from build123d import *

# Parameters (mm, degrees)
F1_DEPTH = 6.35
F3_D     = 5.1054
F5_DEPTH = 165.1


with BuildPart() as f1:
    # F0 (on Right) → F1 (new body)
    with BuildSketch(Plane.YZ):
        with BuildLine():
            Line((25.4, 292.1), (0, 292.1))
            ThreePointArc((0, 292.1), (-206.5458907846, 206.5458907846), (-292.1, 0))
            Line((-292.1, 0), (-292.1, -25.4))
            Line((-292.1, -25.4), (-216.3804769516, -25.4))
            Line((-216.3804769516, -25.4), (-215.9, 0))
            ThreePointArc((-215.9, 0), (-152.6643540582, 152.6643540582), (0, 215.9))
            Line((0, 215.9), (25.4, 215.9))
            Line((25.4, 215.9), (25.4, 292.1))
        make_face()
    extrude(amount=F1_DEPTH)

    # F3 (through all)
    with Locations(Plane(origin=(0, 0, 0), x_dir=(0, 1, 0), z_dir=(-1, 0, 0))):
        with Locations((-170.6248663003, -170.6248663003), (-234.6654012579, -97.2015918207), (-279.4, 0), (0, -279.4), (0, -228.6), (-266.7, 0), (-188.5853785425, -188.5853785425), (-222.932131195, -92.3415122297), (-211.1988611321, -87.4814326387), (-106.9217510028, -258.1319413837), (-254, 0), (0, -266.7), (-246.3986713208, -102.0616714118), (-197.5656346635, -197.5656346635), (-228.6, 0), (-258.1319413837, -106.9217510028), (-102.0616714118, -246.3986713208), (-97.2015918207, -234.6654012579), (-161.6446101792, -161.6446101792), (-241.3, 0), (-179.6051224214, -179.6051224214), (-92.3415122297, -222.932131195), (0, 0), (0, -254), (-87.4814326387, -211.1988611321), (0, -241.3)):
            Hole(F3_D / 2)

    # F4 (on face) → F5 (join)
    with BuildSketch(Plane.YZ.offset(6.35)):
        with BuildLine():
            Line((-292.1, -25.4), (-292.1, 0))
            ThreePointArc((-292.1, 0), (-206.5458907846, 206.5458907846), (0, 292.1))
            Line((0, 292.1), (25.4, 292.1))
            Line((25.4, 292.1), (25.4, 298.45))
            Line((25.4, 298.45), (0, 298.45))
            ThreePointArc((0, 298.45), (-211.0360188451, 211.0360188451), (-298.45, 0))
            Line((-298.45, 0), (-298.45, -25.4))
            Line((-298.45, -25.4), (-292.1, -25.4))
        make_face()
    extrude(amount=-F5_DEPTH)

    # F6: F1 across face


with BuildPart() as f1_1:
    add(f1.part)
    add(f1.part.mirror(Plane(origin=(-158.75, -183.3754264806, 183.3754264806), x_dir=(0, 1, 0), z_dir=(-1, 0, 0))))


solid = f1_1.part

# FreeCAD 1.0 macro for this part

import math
import FreeCAD as App
import Part
import Sketcher

V = App.Vector
Q = App.Units.Quantity

doc = App.newDocument("Part")
body = doc.addObject("PartDesign::Body", "Body")

# Sketch on YZ plane
sketch1 = body.newObject("Sketcher::SketchObject", "Sketch")
sketch1.AttachmentSupport = (doc.getObject("YZ_Plane"), [""])
sketch1.MapMode = "FlatFace"
sketch1.addGeometry([
    Part.LineSegment(V(25, 292, 0), V(0, 292, 0)),  # 0
    Part.ArcOfCircle(Part.Circle(V(0, 0, 0), V(0, 0, 1), 292), math.radians(90), math.radians(180)),  # 1
    Part.LineSegment(V(-292, 0, 0), V(-292, -25, 0)),  # 2
    Part.LineSegment(V(-292, -25, 0), V(-216, -25, 0)),  # 3
    Part.LineSegment(V(-216, -25, 0), V(-216, 0, 0)),  # 4
    Part.ArcOfCircle(Part.Circle(V(0, 0, 0), V(0, 0, 1), 216), math.radians(90), math.radians(180)),  # 5
    Part.LineSegment(V(0, 216, 0), V(25, 216, 0)),  # 6
    Part.LineSegment(V(25, 216, 0), V(25, 292, 0)),  # 7
], False)
sketch1.addConstraint([
    Sketcher.Constraint("Tangent", 0, 2, 1, 1),
    Sketcher.Constraint("Tangent", 1, 2, 2, 1),
    Sketcher.Constraint("Coincident", 2, 2, 3, 1),
    Sketcher.Constraint("Coincident", 3, 2, 4, 1),
    Sketcher.Constraint("Coincident", 4, 2, 5, 2),
    Sketcher.Constraint("Tangent", 5, 1, 6, 1),
    Sketcher.Constraint("Coincident", 6, 2, 7, 1),
    Sketcher.Constraint("Coincident", 7, 2, 0, 1),
    Sketcher.Constraint("Horizontal", 0),
    Sketcher.Constraint("Vertical", 2),
    Sketcher.Constraint("Horizontal", 3),
    Sketcher.Constraint("Horizontal", 6),
    Sketcher.Constraint("Vertical", 7),
    Sketcher.Constraint("Coincident", 1, 3, -1, 1),
    Sketcher.Constraint("Coincident", 5, 3, -1, 1),
    Sketcher.Constraint("PointOnObject", 4, 2, -1),
    Sketcher.Constraint("Equal", 6, 2),
    Sketcher.Constraint("Radius", 1, Q("11.5 in")),
    Sketcher.Constraint("Radius", 5, Q("8.5 in")),
    Sketcher.Constraint("DistanceX", 0, 2, 0, 1, Q("1 in")),
    Sketcher.Constraint("DistanceX", 3, 1, 3, 2, Q("75.719523 mm")),
])
pad1 = body.newObject("PartDesign::Pad", "Pad")
pad1.Profile = sketch1
pad1.Length = Q("0.25 in")

# Sketch on YZ plane
sketch2 = body.newObject("Sketcher::SketchObject", "Sketch001")
sketch2.AttachmentSupport = (doc.getObject("YZ_Plane"), [""])
sketch2.MapMode = "FlatFace"
sketch2.addGeometry([
    Part.Circle(V(-170.6, 170.6, 0), V(0, 0, 1), 2.6),  # 0
    Part.Circle(V(-234.7, 97.2, 0), V(0, 0, 1), 2.6),  # 1
    Part.Circle(V(-279.4, 0, 0), V(0, 0, 1), 2.6),  # 2
    Part.Circle(V(0, 279.4, 0), V(0, 0, 1), 2.6),  # 3
    Part.Circle(V(0, 228.6, 0), V(0, 0, 1), 2.6),  # 4
    Part.Circle(V(-266.7, 0, 0), V(0, 0, 1), 2.6),  # 5
    Part.Circle(V(-188.6, 188.6, 0), V(0, 0, 1), 2.6),  # 6
    Part.Circle(V(-222.9, 92.3, 0), V(0, 0, 1), 2.6),  # 7
    Part.Circle(V(-211.2, 87.5, 0), V(0, 0, 1), 2.6),  # 8
    Part.Circle(V(-106.9, 258.1, 0), V(0, 0, 1), 2.6),  # 9
    Part.Circle(V(-254, 0, 0), V(0, 0, 1), 2.6),  # 10
    Part.Circle(V(0, 266.7, 0), V(0, 0, 1), 2.6),  # 11
    Part.Circle(V(-246.4, 102.1, 0), V(0, 0, 1), 2.6),  # 12
    Part.Circle(V(-197.6, 197.6, 0), V(0, 0, 1), 2.6),  # 13
    Part.Circle(V(-228.6, 0, 0), V(0, 0, 1), 2.6),  # 14
    Part.Circle(V(-258.1, 106.9, 0), V(0, 0, 1), 2.6),  # 15
    Part.Circle(V(-102.1, 246.4, 0), V(0, 0, 1), 2.6),  # 16
    Part.Circle(V(-97.2, 234.7, 0), V(0, 0, 1), 2.6),  # 17
    Part.Circle(V(-161.6, 161.6, 0), V(0, 0, 1), 2.6),  # 18
    Part.Circle(V(-241.3, 0, 0), V(0, 0, 1), 2.6),  # 19
    Part.Circle(V(-179.6, 179.6, 0), V(0, 0, 1), 2.6),  # 20
    Part.Circle(V(-92.3, 222.9, 0), V(0, 0, 1), 2.6),  # 21
    Part.Circle(V(0, 0, 0), V(0, 0, 1), 2.6),  # 22
    Part.Circle(V(0, 254, 0), V(0, 0, 1), 2.6),  # 23
    Part.Circle(V(-87.5, 211.2, 0), V(0, 0, 1), 2.6),  # 24
    Part.Circle(V(0, 241.3, 0), V(0, 0, 1), 2.6),  # 25
], False)
sketch2.addConstraint([
    Sketcher.Constraint("Coincident", 22, 3, -1, 1),
    Sketcher.Constraint("Equal", 0, 1),
    Sketcher.Constraint("Equal", 1, 2),
    Sketcher.Constraint("Equal", 2, 3),
    Sketcher.Constraint("Equal", 3, 4),
    Sketcher.Constraint("Equal", 4, 5),
    Sketcher.Constraint("Equal", 5, 6),
    Sketcher.Constraint("Equal", 6, 7),
    Sketcher.Constraint("Equal", 7, 8),
    Sketcher.Constraint("Equal", 8, 9),
    Sketcher.Constraint("Equal", 9, 10),
    Sketcher.Constraint("Equal", 10, 11),
    Sketcher.Constraint("Equal", 11, 12),
    Sketcher.Constraint("Equal", 12, 13),
    Sketcher.Constraint("Equal", 13, 14),
    Sketcher.Constraint("Equal", 14, 15),
    Sketcher.Constraint("Equal", 15, 16),
    Sketcher.Constraint("Equal", 16, 17),
    Sketcher.Constraint("Equal", 17, 18),
    Sketcher.Constraint("Equal", 18, 19),
    Sketcher.Constraint("Equal", 19, 20),
    Sketcher.Constraint("Equal", 20, 21),
    Sketcher.Constraint("Equal", 21, 22),
    Sketcher.Constraint("Equal", 22, 23),
    Sketcher.Constraint("Equal", 23, 24),
    Sketcher.Constraint("Equal", 24, 25),
    Sketcher.Constraint("PointOnObject", 2, 3, -1),
    Sketcher.Constraint("PointOnObject", 3, 3, -2),
    Sketcher.Constraint("PointOnObject", 4, 3, -2),
    Sketcher.Constraint("PointOnObject", 5, 3, -1),
    Sketcher.Constraint("PointOnObject", 10, 3, -1),
    Sketcher.Constraint("PointOnObject", 11, 3, -2),
    Sketcher.Constraint("PointOnObject", 14, 3, -1),
    Sketcher.Constraint("PointOnObject", 19, 3, -1),
    Sketcher.Constraint("PointOnObject", 23, 3, -2),
    Sketcher.Constraint("PointOnObject", 25, 3, -2),
    Sketcher.Constraint("Diameter", 0, Q("0.201 in")),
    Sketcher.Constraint("DistanceX", 2, 3, -1, 1, Q("11 in")),
    Sketcher.Constraint("DistanceY", -1, 1, 3, 3, Q("11 in")),
    Sketcher.Constraint("DistanceY", -1, 1, 4, 3, Q("9 in")),
    Sketcher.Constraint("DistanceX", 10, 3, -1, 1, Q("10 in")),
    Sketcher.Constraint("DistanceX", 14, 3, -1, 1, Q("9 in")),
    Sketcher.Constraint("DistanceY", -1, 1, 23, 3, Q("10 in")),
    Sketcher.Constraint("DistanceX", 5, 3, 19, 3, Q("1 in")),
    Sketcher.Constraint("DistanceY", 25, 3, 11, 3, Q("1 in")),
    Sketcher.Constraint("DistanceX", 5, 3, -1, 1, Q("10.5 in")),
    Sketcher.Constraint("DistanceY", -1, 1, 11, 3, Q("10.5 in")),
    Sketcher.Constraint("DistanceX", 1, 3, -1, 1, Q("234.665401 mm")),
    Sketcher.Constraint("DistanceY", -1, 1, 17, 3, Q("234.665401 mm")),
    Sketcher.Constraint("DistanceY", -1, 1, 1, 3, Q("97.201592 mm")),
    Sketcher.Constraint("DistanceX", 6, 3, -1, 1, Q("188.585379 mm")),
    Sketcher.Constraint("DistanceY", -1, 1, 6, 3, Q("188.585379 mm")),
    Sketcher.Constraint("DistanceX", 7, 3, -1, 1, Q("222.932131 mm")),
    Sketcher.Constraint("DistanceX", 8, 3, -1, 1, Q("211.198861 mm")),
    Sketcher.Constraint("DistanceX", 9, 3, -1, 1, Q("106.921751 mm")),
    Sketcher.Constraint("DistanceY", -1, 1, 9, 3, Q("258.131941 mm")),
    Sketcher.Constraint("DistanceX", 12, 3, -1, 1, Q("246.398671 mm")),
    Sketcher.Constraint("DistanceY", -1, 1, 12, 3, Q("102.061671 mm")),
    Sketcher.Constraint("DistanceX", 15, 3, -1, 1, Q("258.131941 mm")),
    Sketcher.Constraint("DistanceY", -1, 1, 15, 3, Q("106.921751 mm")),
    Sketcher.Constraint("DistanceX", 16, 3, -1, 1, Q("102.061671 mm")),
    Sketcher.Constraint("DistanceY", -1, 1, 16, 3, Q("246.398671 mm")),
    Sketcher.Constraint("DistanceX", 17, 3, -1, 1, Q("97.201592 mm")),
    Sketcher.Constraint("DistanceX", 18, 3, -1, 1, Q("161.64461 mm")),
    Sketcher.Constraint("DistanceY", -1, 1, 18, 3, Q("161.64461 mm")),
    Sketcher.Constraint("DistanceY", -1, 1, 21, 3, Q("222.932131 mm")),
    Sketcher.Constraint("DistanceY", -1, 1, 24, 3, Q("211.198861 mm")),
    Sketcher.Constraint("DistanceY", 7, 3, 1, 3, Q("4.86008 mm")),
    Sketcher.Constraint("DistanceY", 8, 3, 7, 3, Q("4.86008 mm")),
    Sketcher.Constraint("DistanceX", 13, 3, 0, 3, Q("26.940768 mm")),
    Sketcher.Constraint("DistanceY", 0, 3, 13, 3, Q("26.940768 mm")),
    Sketcher.Constraint("DistanceX", 8, 3, 20, 3, Q("31.593739 mm")),
    Sketcher.Constraint("DistanceY", 8, 3, 20, 3, Q("92.12369 mm")),
    Sketcher.Constraint("DistanceX", 17, 3, 21, 3, Q("4.86008 mm")),
    Sketcher.Constraint("DistanceX", 21, 3, 24, 3, Q("4.86008 mm")),
    Sketcher.Constraint("DistanceX", 0, 3, -1, 1, Q("170.624866 mm")),
    Sketcher.Constraint("DistanceY", -1, 1, 0, 3, Q("170.624866 mm")),
])
doc.recompute()
hole = body.newObject("PartDesign::Hole", "Hole")
hole.Profile = sketch2
hole.ThreadType = "None"
hole.Diameter = Q("0.201 in")
hole.DepthType = "ThroughAll"
hole.Reversed = True

# Sketch on YZ plane
sketch3 = body.newObject("Sketcher::SketchObject", "Sketch002")
sketch3.AttachmentSupport = (doc.getObject("YZ_Plane"), [""])
sketch3.MapMode = "FlatFace"
sketch3.AttachmentOffset = App.Placement(V(0, 0, 0.25 * 25.4), App.Rotation())
sketch3.addGeometry([
    Part.LineSegment(V(-292, -25, 0), V(-292, 0, 0)),  # 0
    Part.ArcOfCircle(Part.Circle(V(0, 0, 0), V(0, 0, 1), 292), math.radians(90), math.radians(180)),  # 1
    Part.LineSegment(V(0, 292, 0), V(25, 292, 0)),  # 2
    Part.LineSegment(V(25, 292, 0), V(25, 298, 0)),  # 3
    Part.LineSegment(V(25, 298, 0), V(0, 298, 0)),  # 4
    Part.ArcOfCircle(Part.Circle(V(0, 0, 0), V(0, 0, 1), 298), math.radians(90), math.radians(180)),  # 5
    Part.LineSegment(V(-298, 0, 0), V(-298, -25, 0)),  # 6
    Part.LineSegment(V(-298, -25, 0), V(-292, -25, 0)),  # 7
], False)
sketch3.addConstraint([
    Sketcher.Constraint("Tangent", 0, 2, 1, 2),
    Sketcher.Constraint("Tangent", 1, 1, 2, 1),
    Sketcher.Constraint("Coincident", 2, 2, 3, 1),
    Sketcher.Constraint("Coincident", 3, 2, 4, 1),
    Sketcher.Constraint("Tangent", 4, 2, 5, 1),
    Sketcher.Constraint("Tangent", 5, 2, 6, 1),
    Sketcher.Constraint("Coincident", 6, 2, 7, 1),
    Sketcher.Constraint("Coincident", 7, 2, 0, 1),
    Sketcher.Constraint("Vertical", 0),
    Sketcher.Constraint("Horizontal", 2),
    Sketcher.Constraint("Vertical", 3),
    Sketcher.Constraint("Horizontal", 4),
    Sketcher.Constraint("Vertical", 6),
    Sketcher.Constraint("Horizontal", 7),
    Sketcher.Constraint("Coincident", 1, 3, -1, 1),
    Sketcher.Constraint("Coincident", 5, 3, -1, 1),
    Sketcher.Constraint("Equal", 4, 0),
    Sketcher.Constraint("Radius", 1, Q("11.5 in")),
    Sketcher.Constraint("DistanceX", 2, 1, 2, 2, Q("1 in")),
    Sketcher.Constraint("Radius", 5, Q("11.75 in")),
])
pad2 = body.newObject("PartDesign::Pad", "Pad001")
pad2.Profile = sketch3
pad2.Length = Q("6.5 in")
pad2.Reversed = True
body2 = doc.addObject("PartDesign::Body", "Body001")
doc.recompute()

body2.BaseFeature = body
doc.recompute()

mirroring = doc.addObject("Part::Mirroring", "Mirroring")
mirroring.Source = body
mirroring.Base = V(-158.75, -183.375426, 183.375426)
mirroring.Normal = V(-1, 0, 0)
body3 = doc.addObject("PartDesign::Body", "Body002")
body3.BaseFeature = mirroring
boolean = body2.newObject("PartDesign::Boolean", "Boolean")
boolean.Type = "Fuse"
boolean.addObjects([body3])
doc.recompute()
mirroring.Visibility = False

doc.recompute()
